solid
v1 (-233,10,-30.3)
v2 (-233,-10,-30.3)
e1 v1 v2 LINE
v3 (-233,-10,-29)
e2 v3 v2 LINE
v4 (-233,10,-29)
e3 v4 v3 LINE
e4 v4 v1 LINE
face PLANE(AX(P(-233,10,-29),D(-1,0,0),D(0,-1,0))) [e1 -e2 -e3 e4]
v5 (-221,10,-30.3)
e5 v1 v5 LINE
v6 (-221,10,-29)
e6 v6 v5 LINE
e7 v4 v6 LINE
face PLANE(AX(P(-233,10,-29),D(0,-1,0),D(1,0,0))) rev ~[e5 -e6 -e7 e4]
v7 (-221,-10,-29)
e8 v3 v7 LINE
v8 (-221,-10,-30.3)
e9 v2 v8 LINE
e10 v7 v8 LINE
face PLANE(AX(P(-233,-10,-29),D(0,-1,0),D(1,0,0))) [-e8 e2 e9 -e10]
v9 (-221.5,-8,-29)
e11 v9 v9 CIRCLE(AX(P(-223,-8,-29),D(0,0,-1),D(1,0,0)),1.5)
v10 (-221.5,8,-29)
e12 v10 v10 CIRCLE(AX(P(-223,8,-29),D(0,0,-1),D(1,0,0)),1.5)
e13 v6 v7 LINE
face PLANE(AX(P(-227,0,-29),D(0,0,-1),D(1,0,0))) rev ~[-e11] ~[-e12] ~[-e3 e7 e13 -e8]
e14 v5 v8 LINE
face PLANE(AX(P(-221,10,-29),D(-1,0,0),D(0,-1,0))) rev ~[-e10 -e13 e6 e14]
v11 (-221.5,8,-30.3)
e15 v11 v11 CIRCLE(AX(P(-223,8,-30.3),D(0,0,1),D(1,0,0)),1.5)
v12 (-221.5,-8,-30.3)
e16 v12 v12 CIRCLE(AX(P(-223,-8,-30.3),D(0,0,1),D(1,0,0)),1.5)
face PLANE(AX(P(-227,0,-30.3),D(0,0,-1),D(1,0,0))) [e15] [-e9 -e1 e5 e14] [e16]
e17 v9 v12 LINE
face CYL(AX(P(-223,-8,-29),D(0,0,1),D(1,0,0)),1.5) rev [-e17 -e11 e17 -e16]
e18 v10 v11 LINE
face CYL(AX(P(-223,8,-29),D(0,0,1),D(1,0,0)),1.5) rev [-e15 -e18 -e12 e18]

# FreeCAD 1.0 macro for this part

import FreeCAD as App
import Part
import Sketcher
from FreeCAD import Vector

doc = App.newDocument("Part")
body = doc.addObject("PartDesign::Body", "Body")

# Sketch on XY plane
sketch1 = doc.addObject("Sketcher::SketchObject", "Sketch")
body.addObject(sketch1)
sketch1.AttachmentSupport = (doc.XY_Plane, [""])
sketch1.MapMode = "FlatFace"
sketch1.AttachmentOffset = App.Placement(Vector(0, 0, -20), App.Rotation())
sketch1.addGeometry([
    Part.LineSegment(Vector(-17, -10, 0), Vector(-17, 10, 0)),
    Part.LineSegment(Vector(-17, 10, 0), Vector(-5, 10, 0)),
    Part.LineSegment(Vector(-5, 10, 0), Vector(-5, -10, 0)),
    Part.LineSegment(Vector(-5, -10, 0), Vector(-17, -10, 0)),
], False)
sketch1.addConstraint([
    Sketcher.Constraint("Coincident", 0, 2, 1, 1),
    Sketcher.Constraint("Coincident", 1, 2, 2, 1),
    Sketcher.Constraint("Coincident", 2, 2, 3, 1),
    Sketcher.Constraint("Coincident", 3, 2, 0, 1),
    Sketcher.Constraint("Vertical", 0),
    Sketcher.Constraint("Horizontal", 1),
    Sketcher.Constraint("Vertical", 2),
    Sketcher.Constraint("Horizontal", 3),
    Sketcher.Constraint("DistanceX", 1, 1, 1, 2, 12.0),
    Sketcher.Constraint("DistanceY", 0, 1, 0, 2, 20.0),
    Sketcher.Constraint("DistanceX", 0, 2, -1, 1, 17.0),
    Sketcher.Constraint("DistanceY", -1, 1, 0, 2, 10.0),
])
pad1 = doc.addObject("PartDesign::Pad", "Pad")
body.addObject(pad1)
pad1.Profile = sketch1
pad1.Length = 1.3
pad1.Reversed = True

# Sketch on XY plane
sketch2 = doc.addObject("Sketcher::SketchObject", "Sketch001")
body.addObject(sketch2)
sketch2.AttachmentSupport = (doc.XY_Plane, [""])
sketch2.MapMode = "FlatFace"
sketch2.AttachmentOffset = App.Placement(Vector(0, 0, -20), App.Rotation())
sketch2.addGeometry([
    Part.Circle(Vector(-7, -8, 0), Vector(0, 0, 1), 1.5),
    Part.Circle(Vector(-7, 8, 0), Vector(0, 0, 1), 1.5),
], False)
sketch2.addConstraint([
    Sketcher.Constraint("Equal", 0, 1),
    Sketcher.Constraint("Symmetric", 0, 3, 1, 3, -1),
    Sketcher.Constraint("Diameter", 0, 3.0),
    Sketcher.Constraint("DistanceX", 0, 3, -1, 1, 7.0),
    Sketcher.Constraint("DistanceY", 0, 3, -1, 1, 8.0),
])
pocket1 = doc.addObject("PartDesign::Pocket", "Pocket")
body.addObject(pocket1)
pocket1.Profile = sketch2
pocket1.Length = 3
body2 = doc.addObject("PartDesign::Body", "Body001")
doc.recompute()

body.Placement = App.Placement(Vector(-216, 0, -9), App.Rotation(Vector(0, 0, 1), 0))
boolean = doc.addObject("PartDesign::Boolean", "Boolean")
body2.addObject(boolean)
boolean.Type = "Fuse"
boolean.addObjects([body])

doc.recompute()
